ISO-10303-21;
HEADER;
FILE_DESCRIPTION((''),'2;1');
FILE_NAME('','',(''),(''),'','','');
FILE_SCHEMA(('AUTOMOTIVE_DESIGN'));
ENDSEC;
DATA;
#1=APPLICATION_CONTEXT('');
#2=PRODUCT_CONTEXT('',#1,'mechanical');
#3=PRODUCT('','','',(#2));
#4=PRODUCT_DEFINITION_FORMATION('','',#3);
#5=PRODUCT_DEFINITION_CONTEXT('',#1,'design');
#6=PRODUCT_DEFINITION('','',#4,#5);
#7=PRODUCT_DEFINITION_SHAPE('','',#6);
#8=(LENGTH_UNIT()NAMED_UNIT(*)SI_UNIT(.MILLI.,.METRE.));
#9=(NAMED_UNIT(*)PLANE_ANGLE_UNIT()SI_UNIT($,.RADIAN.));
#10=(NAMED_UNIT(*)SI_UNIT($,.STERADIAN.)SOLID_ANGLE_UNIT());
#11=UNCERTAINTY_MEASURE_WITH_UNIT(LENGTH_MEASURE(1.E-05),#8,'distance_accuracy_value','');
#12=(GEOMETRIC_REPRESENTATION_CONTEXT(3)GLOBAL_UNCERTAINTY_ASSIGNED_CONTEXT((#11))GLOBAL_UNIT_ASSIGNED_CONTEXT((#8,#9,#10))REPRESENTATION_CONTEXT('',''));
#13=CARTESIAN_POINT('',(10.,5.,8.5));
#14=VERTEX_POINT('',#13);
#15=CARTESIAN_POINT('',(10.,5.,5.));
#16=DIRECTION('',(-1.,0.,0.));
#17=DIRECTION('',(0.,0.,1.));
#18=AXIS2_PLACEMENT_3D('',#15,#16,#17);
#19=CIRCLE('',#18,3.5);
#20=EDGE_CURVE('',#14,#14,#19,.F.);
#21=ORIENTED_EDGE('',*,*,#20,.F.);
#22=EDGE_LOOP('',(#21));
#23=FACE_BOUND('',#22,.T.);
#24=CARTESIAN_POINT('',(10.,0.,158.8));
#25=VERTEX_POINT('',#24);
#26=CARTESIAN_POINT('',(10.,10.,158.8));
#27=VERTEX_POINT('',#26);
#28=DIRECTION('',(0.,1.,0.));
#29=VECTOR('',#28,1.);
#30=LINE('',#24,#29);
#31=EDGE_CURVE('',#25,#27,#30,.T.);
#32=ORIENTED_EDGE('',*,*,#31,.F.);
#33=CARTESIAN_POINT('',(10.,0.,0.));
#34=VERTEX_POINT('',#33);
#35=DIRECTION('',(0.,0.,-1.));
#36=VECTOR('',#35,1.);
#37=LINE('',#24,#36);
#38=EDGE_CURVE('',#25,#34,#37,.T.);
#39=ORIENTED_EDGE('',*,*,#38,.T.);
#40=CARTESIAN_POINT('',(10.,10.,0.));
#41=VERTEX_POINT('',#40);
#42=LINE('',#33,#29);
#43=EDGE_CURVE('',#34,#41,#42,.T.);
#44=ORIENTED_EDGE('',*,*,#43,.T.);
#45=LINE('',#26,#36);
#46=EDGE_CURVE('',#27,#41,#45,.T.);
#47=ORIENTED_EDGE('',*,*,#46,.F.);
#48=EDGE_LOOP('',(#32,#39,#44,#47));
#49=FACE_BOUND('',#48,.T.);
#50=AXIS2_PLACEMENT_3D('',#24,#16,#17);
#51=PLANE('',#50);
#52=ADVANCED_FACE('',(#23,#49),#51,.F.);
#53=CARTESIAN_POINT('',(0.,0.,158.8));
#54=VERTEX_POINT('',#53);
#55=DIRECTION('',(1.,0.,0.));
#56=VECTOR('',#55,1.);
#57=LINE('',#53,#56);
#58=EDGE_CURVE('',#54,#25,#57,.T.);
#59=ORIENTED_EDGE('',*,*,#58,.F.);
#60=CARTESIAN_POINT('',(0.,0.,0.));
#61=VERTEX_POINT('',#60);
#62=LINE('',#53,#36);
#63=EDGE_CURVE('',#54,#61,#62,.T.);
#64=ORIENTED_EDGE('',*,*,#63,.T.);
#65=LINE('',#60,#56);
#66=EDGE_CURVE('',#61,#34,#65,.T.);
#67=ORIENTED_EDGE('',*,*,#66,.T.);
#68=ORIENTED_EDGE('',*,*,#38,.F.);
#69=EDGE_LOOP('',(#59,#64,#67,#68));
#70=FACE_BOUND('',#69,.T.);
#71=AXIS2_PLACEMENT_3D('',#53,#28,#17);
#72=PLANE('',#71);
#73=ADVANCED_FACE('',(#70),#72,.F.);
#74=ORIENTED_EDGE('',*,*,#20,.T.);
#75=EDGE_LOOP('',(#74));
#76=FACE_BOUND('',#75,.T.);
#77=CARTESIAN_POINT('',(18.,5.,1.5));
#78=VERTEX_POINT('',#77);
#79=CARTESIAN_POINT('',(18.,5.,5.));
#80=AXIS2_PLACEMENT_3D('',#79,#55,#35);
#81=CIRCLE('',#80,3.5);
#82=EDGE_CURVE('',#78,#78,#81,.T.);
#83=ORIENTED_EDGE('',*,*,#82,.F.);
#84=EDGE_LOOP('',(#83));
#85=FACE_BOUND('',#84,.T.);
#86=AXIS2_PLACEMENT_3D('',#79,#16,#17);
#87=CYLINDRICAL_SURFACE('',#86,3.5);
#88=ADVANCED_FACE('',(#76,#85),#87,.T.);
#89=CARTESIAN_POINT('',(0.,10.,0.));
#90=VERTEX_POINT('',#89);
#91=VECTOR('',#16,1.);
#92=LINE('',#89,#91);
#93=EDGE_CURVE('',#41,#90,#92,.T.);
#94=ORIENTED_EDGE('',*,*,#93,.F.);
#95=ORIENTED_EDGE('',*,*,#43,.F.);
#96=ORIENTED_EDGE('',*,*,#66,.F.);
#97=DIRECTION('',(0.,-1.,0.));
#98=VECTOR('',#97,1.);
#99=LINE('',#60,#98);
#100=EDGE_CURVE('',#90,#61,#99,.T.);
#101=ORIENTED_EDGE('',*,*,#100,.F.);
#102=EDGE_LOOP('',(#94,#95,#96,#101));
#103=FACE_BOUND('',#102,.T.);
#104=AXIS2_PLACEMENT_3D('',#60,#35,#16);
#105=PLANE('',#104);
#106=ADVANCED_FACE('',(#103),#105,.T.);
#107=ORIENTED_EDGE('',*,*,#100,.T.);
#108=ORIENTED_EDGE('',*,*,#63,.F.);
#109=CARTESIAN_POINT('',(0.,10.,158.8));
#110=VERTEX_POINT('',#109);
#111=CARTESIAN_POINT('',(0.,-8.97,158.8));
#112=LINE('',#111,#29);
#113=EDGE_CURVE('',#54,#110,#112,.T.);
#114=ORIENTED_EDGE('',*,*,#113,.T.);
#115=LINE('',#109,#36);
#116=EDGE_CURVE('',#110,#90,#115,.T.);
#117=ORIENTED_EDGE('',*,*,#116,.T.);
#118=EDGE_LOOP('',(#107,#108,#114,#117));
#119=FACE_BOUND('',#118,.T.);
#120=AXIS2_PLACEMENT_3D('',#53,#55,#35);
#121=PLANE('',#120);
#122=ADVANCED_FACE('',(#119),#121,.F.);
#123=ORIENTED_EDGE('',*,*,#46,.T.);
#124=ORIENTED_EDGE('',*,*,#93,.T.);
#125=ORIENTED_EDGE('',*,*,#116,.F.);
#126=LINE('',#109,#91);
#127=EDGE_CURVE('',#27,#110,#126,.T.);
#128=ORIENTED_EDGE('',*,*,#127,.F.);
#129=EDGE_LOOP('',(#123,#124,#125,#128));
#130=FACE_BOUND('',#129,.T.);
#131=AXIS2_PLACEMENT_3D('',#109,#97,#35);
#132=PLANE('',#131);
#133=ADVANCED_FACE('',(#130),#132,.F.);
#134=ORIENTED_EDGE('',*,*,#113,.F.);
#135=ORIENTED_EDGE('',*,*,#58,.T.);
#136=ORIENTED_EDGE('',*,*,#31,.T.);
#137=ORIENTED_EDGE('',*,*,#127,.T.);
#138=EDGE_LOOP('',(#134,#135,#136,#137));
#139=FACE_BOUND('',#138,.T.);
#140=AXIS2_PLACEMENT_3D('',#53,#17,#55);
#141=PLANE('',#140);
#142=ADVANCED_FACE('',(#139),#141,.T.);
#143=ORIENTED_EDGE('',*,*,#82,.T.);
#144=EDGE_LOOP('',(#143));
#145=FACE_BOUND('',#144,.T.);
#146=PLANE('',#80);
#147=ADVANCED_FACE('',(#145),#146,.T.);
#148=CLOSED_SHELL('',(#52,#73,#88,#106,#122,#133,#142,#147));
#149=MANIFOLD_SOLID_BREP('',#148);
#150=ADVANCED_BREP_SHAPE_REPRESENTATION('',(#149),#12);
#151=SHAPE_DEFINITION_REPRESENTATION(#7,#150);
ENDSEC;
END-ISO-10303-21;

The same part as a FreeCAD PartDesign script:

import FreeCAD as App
import Part
import Sketcher

V = App.Vector
Q = App.Units.Quantity

doc = App.newDocument("Part")
params = doc.addObject("Spreadsheet::Sheet", "Params")
for row, (alias, value) in enumerate([
    ("sketch1_width", "10 mm"),
    ("pad1_length", "158.8 mm"),
    ("sketch2_diameter", "7 mm"),
    ("pad2_length", "8 mm"),
    ("sketch3_width", "15 mm"),
    ("sketch3_height", "27.94 mm"),
    ("pad3_length", "4 mm"),
    ("sketch4_height", "27.94 mm"),
    ("pad4_length", "4 mm"),
    ("sketch5_diameter", "3 mm"),
    ("pocket1_length", "40 mm"),
    ("sketch6_width", "15 mm"),
    ("sketch6_height", "27.94 mm"),
    ("pocket2_length", "8 mm"),
], start=1):
    params.set(f"A{row}", alias)
    params.set(f"B{row}", "=" + value)
    params.setAlias(f"B{row}", alias)

body = doc.addObject("PartDesign::Body", "Body")

sketch1 = body.newObject("Sketcher::SketchObject", "Sketch")
sketch1.AttachmentSupport = (doc.getObject("XY_Plane"), [""])
sketch1.MapMode = "FlatFace"
sketch1.addGeometry([
    Part.LineSegment(V(0, 10, 0), V(0, 0, 0)),
    Part.LineSegment(V(0, 0, 0), V(10, 0, 0)),
    Part.LineSegment(V(10, 0, 0), V(10, 10, 0)),
    Part.LineSegment(V(10, 10, 0), V(0, 10, 0)),
], False)
sketch1.addConstraint([
    Sketcher.Constraint("Coincident", 0, 2, 1, 1),
    Sketcher.Constraint("Coincident", 1, 2, 2, 1),
    Sketcher.Constraint("Coincident", 2, 2, 3, 1),
    Sketcher.Constraint("Coincident", 3, 2, 0, 1),
    Sketcher.Constraint("Vertical", 0),
    Sketcher.Constraint("Horizontal", 1),
    Sketcher.Constraint("Vertical", 2),
    Sketcher.Constraint("Horizontal", 3),
    Sketcher.Constraint("Coincident", 0, 2, -1, 1),
    Sketcher.Constraint("Equal", 3, 0),
    Sketcher.Constraint("DistanceX", 1, 1, 1, 2, Q("10 mm")),
])
sketch1.setExpression("Constraints[10]", "Params.sketch1_width")
pad1 = body.newObject("PartDesign::Pad", "Pad")
pad1.Profile = sketch1
pad1.setExpression("Length", "Params.pad1_length")

sketch2 = body.newObject("Sketcher::SketchObject", "Sketch001")
sketch2.AttachmentSupport = (doc.getObject("YZ_Plane"), [""])
sketch2.MapMode = "FlatFace"
sketch2.AttachmentOffset = App.Placement(V(0, 0, 10), App.Rotation())
sketch2.addGeometry(Part.Circle(V(5, 5, 0), V(0, 0, 1), 3.5), False)
sketch2.addConstraint([
    Sketcher.Constraint("Diameter", 0, Q("7 mm")),
    Sketcher.Constraint("DistanceX", -1, 1, 0, 3, Q("5 mm")),
    Sketcher.Constraint("DistanceY", -1, 1, 0, 3, Q("5 mm")),
])
sketch2.setExpression("Constraints[0]", "Params.sketch2_diameter")
pad2 = body.newObject("PartDesign::Pad", "Pad001")
pad2.Profile = sketch2
pad2.setExpression("Length", "Params.pad2_length")

sketch3 = body.newObject("Sketcher::SketchObject", "Sketch002")
sketch3.AttachmentSupport = (doc.getObject("XY_Plane"), [""])
sketch3.MapMode = "FlatFace"
sketch3.AttachmentOffset = App.Placement(V(0, 0, 158.8), App.Rotation())
sketch3.addGeometry([
    Part.LineSegment(V(0, 18.97, 0), V(0, -8.97, 0)),
    Part.LineSegment(V(0, -8.97, 0), V(15, -8.97, 0)),
    Part.LineSegment(V(15, -8.97, 0), V(15, 18.97, 0)),
    Part.LineSegment(V(15, 18.97, 0), V(0, 18.97, 0)),
], False)
sketch3.addConstraint([
    Sketcher.Constraint("Coincident", 0, 2, 1, 1),
    Sketcher.Constraint("Coincident", 1, 2, 2, 1),
    Sketcher.Constraint("Coincident", 2, 2, 3, 1),
    Sketcher.Constraint("Coincident", 3, 2, 0, 1),
    Sketcher.Constraint("Vertical", 0),
    Sketcher.Constraint("Horizontal", 1),
    Sketcher.Constraint("Vertical", 2),
    Sketcher.Constraint("Horizontal", 3),
    Sketcher.Constraint("PointOnObject", 0, 2, -2),
    Sketcher.Constraint("DistanceX", 1, 1, 1, 2, Q("15 mm")),
    Sketcher.Constraint("DistanceY", 0, 2, 0, 1, Q("27.94 mm")),
    Sketcher.Constraint("DistanceY", 0, 2, -1, 1, Q("8.97 mm")),
])
sketch3.setExpression("Constraints[9]", "Params.sketch3_width")
sketch3.setExpression("Constraints[10]", "Params.sketch3_height")
pad3 = body.newObject("PartDesign::Pad", "Pad002")
pad3.Profile = sketch3
pad3.setExpression("Length", "Params.pad3_length")

sketch4 = body.newObject("Sketcher::SketchObject", "Sketch003")
sketch4.AttachmentSupport = (doc.getObject("XY_Plane"), [""])
sketch4.MapMode = "FlatFace"
sketch4.AttachmentOffset = App.Placement(V(0, 0, 162.8), App.Rotation())
sketch4.addGeometry([
    Part.LineSegment(V(12.745515, 18.97, 0), V(12.745515, -8.97, 0)),
    Part.LineSegment(V(12.745515, -8.97, 0), V(15, -8.97, 0)),
    Part.LineSegment(V(15, -8.97, 0), V(15, 18.97, 0)),
    Part.LineSegment(V(15, 18.97, 0), V(12.745515, 18.97, 0)),
], False)
sketch4.addConstraint([
    Sketcher.Constraint("Coincident", 0, 2, 1, 1),
    Sketcher.Constraint("Coincident", 1, 2, 2, 1),
    Sketcher.Constraint("Coincident", 2, 2, 3, 1),
    Sketcher.Constraint("Coincident", 3, 2, 0, 1),
    Sketcher.Constraint("Vertical", 0),
    Sketcher.Constraint("Horizontal", 1),
    Sketcher.Constraint("Vertical", 2),
    Sketcher.Constraint("Horizontal", 3),
    Sketcher.Constraint("DistanceX", -1, 1, 1, 2, Q("15 mm")),
    Sketcher.Constraint("DistanceY", 0, 2, 0, 1, Q("27.94 mm")),
    Sketcher.Constraint("DistanceY", 0, 2, -1, 1, Q("8.97 mm")),
    Sketcher.Constraint("DistanceX", 1, 1, 1, 2, Q("2.254485 mm")),
])
sketch4.setExpression("Constraints[9]", "Params.sketch4_height")
pad4 = body.newObject("PartDesign::Pad", "Pad003")
pad4.Profile = sketch4
pad4.setExpression("Length", "Params.pad4_length")

sketch5 = body.newObject("Sketcher::SketchObject", "Sketch004")
sketch5.AttachmentSupport = (doc.getObject("YZ_Plane"), [""])
sketch5.MapMode = "FlatFace"
sketch5.AttachmentOffset = App.Placement(V(0, 0, 12.745515), App.Rotation())
sketch5.addGeometry([
    Part.Circle(V(16.64426, 165.086, 0), V(0, 0, 1), 1.5),
    Part.Circle(V(-6.645, 165.086, 0), V(0, 0, 1), 1.5),
], False)
sketch5.addConstraint([
    Sketcher.Constraint("Equal", 0, 1),
    Sketcher.Constraint("Horizontal", 0, 3, 1, 3),
    Sketcher.Constraint("Diameter", 0, Q("3 mm")),
    Sketcher.Constraint("DistanceY", -1, 1, 0, 3, Q("165.086 mm")),
    Sketcher.Constraint("DistanceX", 1, 3, -1, 1, Q("6.645 mm")),
    Sketcher.Constraint("DistanceX", -1, 1, 0, 3, Q("16.64426 mm")),
])
sketch5.setExpression("Constraints[2]", "Params.sketch5_diameter")
pocket1 = body.newObject("PartDesign::Pocket", "Pocket")
pocket1.Profile = sketch5
pocket1.setExpression("Length", "Params.pocket1_length")
pocket1.Reversed = True

sketch6 = body.newObject("Sketcher::SketchObject", "Sketch005")
sketch6.AttachmentSupport = (doc.getObject("XY_Plane"), [""])
sketch6.MapMode = "FlatFace"
sketch6.AttachmentOffset = App.Placement(V(0, 0, 166.8), App.Rotation())
sketch6.addGeometry([
    Part.LineSegment(V(0, 18.97, 0), V(0, -8.97, 0)),
    Part.LineSegment(V(0, -8.97, 0), V(15, -8.97, 0)),
    Part.LineSegment(V(15, -8.97, 0), V(15, 18.97, 0)),
    Part.LineSegment(V(15, 18.97, 0), V(0, 18.97, 0)),
], False)
sketch6.addConstraint([
    Sketcher.Constraint("Coincident", 0, 2, 1, 1),
    Sketcher.Constraint("Coincident", 1, 2, 2, 1),
    Sketcher.Constraint("Coincident", 2, 2, 3, 1),
    Sketcher.Constraint("Coincident", 3, 2, 0, 1),
    Sketcher.Constraint("Vertical", 0),
    Sketcher.Constraint("Horizontal", 1),
    Sketcher.Constraint("Vertical", 2),
    Sketcher.Constraint("Horizontal", 3),
    Sketcher.Constraint("PointOnObject", 0, 2, -2),
    Sketcher.Constraint("DistanceX", 1, 1, 1, 2, Q("15 mm")),
    Sketcher.Constraint("DistanceY", 0, 2, 0, 1, Q("27.94 mm")),
    Sketcher.Constraint("DistanceY", 0, 2, -1, 1, Q("8.97 mm")),
])
sketch6.setExpression("Constraints[9]", "Params.sketch6_width")
sketch6.setExpression("Constraints[10]", "Params.sketch6_height")
pocket2 = body.newObject("PartDesign::Pocket", "Pocket001")
pocket2.Profile = sketch6
pocket2.setExpression("Length", "Params.pocket2_length")

doc.recompute()
